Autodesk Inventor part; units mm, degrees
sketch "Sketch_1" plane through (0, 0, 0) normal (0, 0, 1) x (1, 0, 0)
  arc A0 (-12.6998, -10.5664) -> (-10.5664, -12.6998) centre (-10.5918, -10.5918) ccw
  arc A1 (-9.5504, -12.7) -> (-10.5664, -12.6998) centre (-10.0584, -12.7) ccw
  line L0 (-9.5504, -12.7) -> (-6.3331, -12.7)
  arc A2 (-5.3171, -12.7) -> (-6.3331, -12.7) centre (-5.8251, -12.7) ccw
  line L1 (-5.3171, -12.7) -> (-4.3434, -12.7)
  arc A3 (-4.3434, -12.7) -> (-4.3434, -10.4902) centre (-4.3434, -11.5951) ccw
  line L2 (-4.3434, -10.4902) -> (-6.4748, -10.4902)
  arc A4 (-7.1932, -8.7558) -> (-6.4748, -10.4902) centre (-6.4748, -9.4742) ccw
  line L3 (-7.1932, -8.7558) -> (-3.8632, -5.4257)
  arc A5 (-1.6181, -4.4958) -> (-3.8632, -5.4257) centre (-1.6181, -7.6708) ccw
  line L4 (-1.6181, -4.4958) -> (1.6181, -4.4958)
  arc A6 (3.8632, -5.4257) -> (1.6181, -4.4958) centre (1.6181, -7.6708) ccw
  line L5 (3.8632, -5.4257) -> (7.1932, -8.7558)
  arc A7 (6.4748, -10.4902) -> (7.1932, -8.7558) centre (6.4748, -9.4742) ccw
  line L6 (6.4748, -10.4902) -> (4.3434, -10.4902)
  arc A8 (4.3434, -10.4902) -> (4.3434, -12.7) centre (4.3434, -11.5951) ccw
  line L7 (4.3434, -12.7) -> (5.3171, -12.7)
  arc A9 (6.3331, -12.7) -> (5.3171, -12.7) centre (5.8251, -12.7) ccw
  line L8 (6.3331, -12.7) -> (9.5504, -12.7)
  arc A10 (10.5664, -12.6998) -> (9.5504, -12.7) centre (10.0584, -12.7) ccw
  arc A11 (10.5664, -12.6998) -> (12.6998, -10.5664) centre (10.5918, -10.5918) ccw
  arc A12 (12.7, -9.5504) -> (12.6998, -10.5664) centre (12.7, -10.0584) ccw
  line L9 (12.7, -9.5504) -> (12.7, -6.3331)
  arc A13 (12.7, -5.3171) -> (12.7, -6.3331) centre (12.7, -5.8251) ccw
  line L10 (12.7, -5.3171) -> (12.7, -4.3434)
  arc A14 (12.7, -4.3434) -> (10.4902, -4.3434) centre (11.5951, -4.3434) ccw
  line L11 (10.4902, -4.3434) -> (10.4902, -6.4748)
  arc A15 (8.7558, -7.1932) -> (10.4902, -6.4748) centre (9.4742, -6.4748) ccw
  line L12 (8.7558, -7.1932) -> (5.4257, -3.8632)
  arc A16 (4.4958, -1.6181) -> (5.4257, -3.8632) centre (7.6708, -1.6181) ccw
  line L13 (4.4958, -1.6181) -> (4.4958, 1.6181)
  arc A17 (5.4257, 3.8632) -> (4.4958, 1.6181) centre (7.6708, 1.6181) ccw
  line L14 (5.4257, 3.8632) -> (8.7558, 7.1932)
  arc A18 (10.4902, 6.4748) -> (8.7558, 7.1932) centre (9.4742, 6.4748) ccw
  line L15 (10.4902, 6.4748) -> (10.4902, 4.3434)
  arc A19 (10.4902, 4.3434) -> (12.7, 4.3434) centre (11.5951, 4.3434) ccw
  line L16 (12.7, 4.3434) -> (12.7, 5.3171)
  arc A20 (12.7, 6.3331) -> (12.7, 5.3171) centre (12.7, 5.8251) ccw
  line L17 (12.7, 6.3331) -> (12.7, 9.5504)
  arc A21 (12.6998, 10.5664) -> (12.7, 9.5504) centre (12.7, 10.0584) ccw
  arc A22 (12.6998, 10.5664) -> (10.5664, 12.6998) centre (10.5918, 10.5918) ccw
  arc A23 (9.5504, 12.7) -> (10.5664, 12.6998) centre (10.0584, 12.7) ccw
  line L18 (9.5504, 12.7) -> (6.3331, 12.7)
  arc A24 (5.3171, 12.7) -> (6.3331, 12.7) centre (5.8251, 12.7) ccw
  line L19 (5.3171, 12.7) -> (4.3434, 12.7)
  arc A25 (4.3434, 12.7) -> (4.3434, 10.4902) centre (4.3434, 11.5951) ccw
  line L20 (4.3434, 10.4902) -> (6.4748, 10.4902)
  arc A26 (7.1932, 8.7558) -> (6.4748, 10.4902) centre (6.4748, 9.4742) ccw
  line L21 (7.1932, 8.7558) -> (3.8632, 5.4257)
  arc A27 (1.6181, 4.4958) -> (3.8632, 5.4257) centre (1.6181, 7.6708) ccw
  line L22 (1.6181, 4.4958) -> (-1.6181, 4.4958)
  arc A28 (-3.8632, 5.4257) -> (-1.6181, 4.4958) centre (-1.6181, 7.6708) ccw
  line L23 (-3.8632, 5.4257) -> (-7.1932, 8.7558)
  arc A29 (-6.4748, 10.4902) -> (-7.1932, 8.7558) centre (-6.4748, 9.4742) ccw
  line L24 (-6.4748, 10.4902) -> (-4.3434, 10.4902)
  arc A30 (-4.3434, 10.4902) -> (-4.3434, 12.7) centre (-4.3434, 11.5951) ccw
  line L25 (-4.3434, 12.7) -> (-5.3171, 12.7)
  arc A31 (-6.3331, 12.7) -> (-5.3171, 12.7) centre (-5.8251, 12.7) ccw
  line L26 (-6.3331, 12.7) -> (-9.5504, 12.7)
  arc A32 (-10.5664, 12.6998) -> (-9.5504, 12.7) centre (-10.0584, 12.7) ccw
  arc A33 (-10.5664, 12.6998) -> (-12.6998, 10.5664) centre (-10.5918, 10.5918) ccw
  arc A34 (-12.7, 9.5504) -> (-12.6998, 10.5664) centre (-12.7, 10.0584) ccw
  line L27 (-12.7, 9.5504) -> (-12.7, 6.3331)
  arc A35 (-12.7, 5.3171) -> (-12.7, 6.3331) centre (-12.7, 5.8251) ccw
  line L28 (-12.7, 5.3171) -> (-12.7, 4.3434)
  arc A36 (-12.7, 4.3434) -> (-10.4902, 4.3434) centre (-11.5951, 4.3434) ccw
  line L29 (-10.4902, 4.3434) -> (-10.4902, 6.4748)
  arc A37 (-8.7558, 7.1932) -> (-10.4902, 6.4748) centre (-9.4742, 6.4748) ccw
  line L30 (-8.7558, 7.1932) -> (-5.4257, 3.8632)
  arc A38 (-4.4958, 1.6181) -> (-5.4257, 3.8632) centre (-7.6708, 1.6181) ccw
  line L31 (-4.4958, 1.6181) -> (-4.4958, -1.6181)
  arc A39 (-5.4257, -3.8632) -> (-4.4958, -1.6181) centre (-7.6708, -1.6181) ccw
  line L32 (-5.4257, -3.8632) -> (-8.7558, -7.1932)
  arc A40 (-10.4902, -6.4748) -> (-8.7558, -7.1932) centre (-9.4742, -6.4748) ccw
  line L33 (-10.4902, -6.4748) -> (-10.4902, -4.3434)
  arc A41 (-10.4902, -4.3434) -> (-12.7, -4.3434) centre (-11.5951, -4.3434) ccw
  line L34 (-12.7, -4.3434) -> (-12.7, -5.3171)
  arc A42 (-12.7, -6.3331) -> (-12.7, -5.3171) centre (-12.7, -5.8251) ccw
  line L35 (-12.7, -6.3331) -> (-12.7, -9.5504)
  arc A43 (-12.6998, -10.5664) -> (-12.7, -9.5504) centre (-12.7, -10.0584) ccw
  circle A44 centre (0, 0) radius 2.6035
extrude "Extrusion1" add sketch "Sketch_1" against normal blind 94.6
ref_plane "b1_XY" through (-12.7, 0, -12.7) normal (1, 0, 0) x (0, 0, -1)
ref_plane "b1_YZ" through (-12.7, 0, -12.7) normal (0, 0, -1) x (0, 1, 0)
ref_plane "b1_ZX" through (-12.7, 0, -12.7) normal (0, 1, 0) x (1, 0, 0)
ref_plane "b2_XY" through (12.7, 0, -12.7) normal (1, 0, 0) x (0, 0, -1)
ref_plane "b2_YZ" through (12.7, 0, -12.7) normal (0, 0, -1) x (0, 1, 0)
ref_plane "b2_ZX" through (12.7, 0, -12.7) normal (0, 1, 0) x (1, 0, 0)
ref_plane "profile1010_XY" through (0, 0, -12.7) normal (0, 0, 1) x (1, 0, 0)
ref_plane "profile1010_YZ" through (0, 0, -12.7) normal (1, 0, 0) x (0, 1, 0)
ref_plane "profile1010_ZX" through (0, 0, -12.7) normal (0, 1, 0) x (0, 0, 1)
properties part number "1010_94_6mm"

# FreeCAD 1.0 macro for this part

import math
import FreeCAD as App
import Part
import Sketcher

V = App.Vector
Q = App.Units.Quantity

doc = App.newDocument("Part")
body = doc.addObject("PartDesign::Body", "Body")

# Sketch on XY plane
sketch1 = body.newObject("Sketcher::SketchObject", "Sketch")
sketch1.AttachmentSupport = (doc.getObject("XY_Plane"), [""])
sketch1.MapMode = "FlatFace"
sketch1.addGeometry([
    Part.ArcOfCircle(Part.Circle(V(-12.7, -10.1, 0), V(0, 0, 1), 0.5), math.radians(-90), math.radians(90)),  # 0
    Part.ArcOfCircle(Part.Circle(V(-10.6, -10.6, 0), V(0, 0, 1), 2.1), math.radians(179), math.radians(271)),  # 1
    Part.ArcOfCircle(Part.Circle(V(-10.1, -12.7, 0), V(0, 0, 1), 0.5), math.radians(0), math.radians(180)),  # 2
    Part.LineSegment(V(-9.6, -12.7, 0), V(-6.3, -12.7, 0)),  # 3
    Part.ArcOfCircle(Part.Circle(V(-5.8, -12.7, 0), V(0, 0, 1), 0.5), math.radians(0), math.radians(180)),  # 4
    Part.LineSegment(V(-5.3, -12.7, 0), V(-4.3, -12.7, 0)),  # 5
    Part.ArcOfCircle(Part.Circle(V(-4.3, -11.6, 0), V(0, 0, 1), 1.1), math.radians(-90), math.radians(90)),  # 6
    Part.LineSegment(V(-4.3, -10.5, 0), V(-6.5, -10.5, 0)),  # 7
    Part.ArcOfCircle(Part.Circle(V(-6.5, -9.5, 0), V(0, 0, 1), 1), math.radians(135), math.radians(270)),  # 8
    Part.LineSegment(V(-7.2, -8.8, 0), V(-3.9, -5.4, 0)),  # 9
    Part.ArcOfCircle(Part.Circle(V(-1.6, -7.7, 0), V(0, 0, 1), 3.2), math.radians(90), math.radians(135)),  # 10
    Part.LineSegment(V(-1.6, -4.5, 0), V(1.6, -4.5, 0)),  # 11
    Part.ArcOfCircle(Part.Circle(V(1.6, -7.7, 0), V(0, 0, 1), 3.2), math.radians(45), math.radians(90)),  # 12
    Part.LineSegment(V(3.9, -5.4, 0), V(7.2, -8.8, 0)),  # 13
    Part.ArcOfCircle(Part.Circle(V(6.5, -9.5, 0), V(0, 0, 1), 1), math.radians(-90), math.radians(45)),  # 14
    Part.LineSegment(V(6.5, -10.5, 0), V(4.3, -10.5, 0)),  # 15
    Part.ArcOfCircle(Part.Circle(V(4.3, -11.6, 0), V(0, 0, 1), 1.1), math.radians(90), math.radians(270)),  # 16
    Part.LineSegment(V(4.3, -12.7, 0), V(5.3, -12.7, 0)),  # 17
    Part.ArcOfCircle(Part.Circle(V(5.8, -12.7, 0), V(0, 0, 1), 0.5), math.radians(0), math.radians(180)),  # 18
    Part.LineSegment(V(6.3, -12.7, 0), V(9.6, -12.7, 0)),  # 19
    Part.ArcOfCircle(Part.Circle(V(10.1, -12.7, 0), V(0, 0, 1), 0.5), math.radians(0), math.radians(180)),  # 20
    Part.ArcOfCircle(Part.Circle(V(10.6, -10.6, 0), V(0, 0, 1), 2.1), math.radians(-91), math.radians(1)),  # 21
    Part.ArcOfCircle(Part.Circle(V(12.7, -10.1, 0), V(0, 0, 1), 0.5), math.radians(90), math.radians(270)),  # 22
    Part.LineSegment(V(12.7, -9.6, 0), V(12.7, -6.3, 0)),  # 23
    Part.ArcOfCircle(Part.Circle(V(12.7, -5.8, 0), V(0, 0, 1), 0.5), math.radians(90), math.radians(270)),  # 24
    Part.LineSegment(V(12.7, -5.3, 0), V(12.7, -4.3, 0)),  # 25
    Part.ArcOfCircle(Part.Circle(V(11.6, -4.3, 0), V(0, 0, 1), 1.1), math.radians(0), math.radians(180)),  # 26
    Part.LineSegment(V(10.5, -4.3, 0), V(10.5, -6.5, 0)),  # 27
    Part.ArcOfCircle(Part.Circle(V(9.5, -6.5, 0), V(0, 0, 1), 1), math.radians(-135), math.radians(0)),  # 28
    Part.LineSegment(V(8.8, -7.2, 0), V(5.4, -3.9, 0)),  # 29
    Part.ArcOfCircle(Part.Circle(V(7.7, -1.6, 0), V(0, 0, 1), 3.2), math.radians(180), math.radians(225)),  # 30
    Part.LineSegment(V(4.5, -1.6, 0), V(4.5, 1.6, 0)),  # 31
    Part.ArcOfCircle(Part.Circle(V(7.7, 1.6, 0), V(0, 0, 1), 3.2), math.radians(135), math.radians(180)),  # 32
    Part.LineSegment(V(5.4, 3.9, 0), V(8.8, 7.2, 0)),  # 33
    Part.ArcOfCircle(Part.Circle(V(9.5, 6.5, 0), V(0, 0, 1), 1), math.radians(0), math.radians(135)),  # 34
    Part.LineSegment(V(10.5, 6.5, 0), V(10.5, 4.3, 0)),  # 35
    Part.ArcOfCircle(Part.Circle(V(11.6, 4.3, 0), V(0, 0, 1), 1.1), math.radians(180), math.radians(360)),  # 36
    Part.LineSegment(V(12.7, 4.3, 0), V(12.7, 5.3, 0)),  # 37
    Part.ArcOfCircle(Part.Circle(V(12.7, 5.8, 0), V(0, 0, 1), 0.5), math.radians(90), math.radians(270)),  # 38
    Part.LineSegment(V(12.7, 6.3, 0), V(12.7, 9.6, 0)),  # 39
    Part.ArcOfCircle(Part.Circle(V(12.7, 10.1, 0), V(0, 0, 1), 0.5), math.radians(90), math.radians(270)),  # 40
    Part.ArcOfCircle(Part.Circle(V(10.6, 10.6, 0), V(0, 0, 1), 2.1), math.radians(-1), math.radians(91)),  # 41
    Part.ArcOfCircle(Part.Circle(V(10.1, 12.7, 0), V(0, 0, 1), 0.5), math.radians(180), math.radians(360)),  # 42
    Part.LineSegment(V(9.6, 12.7, 0), V(6.3, 12.7, 0)),  # 43
    Part.ArcOfCircle(Part.Circle(V(5.8, 12.7, 0), V(0, 0, 1), 0.5), math.radians(180), math.radians(360)),  # 44
    Part.LineSegment(V(5.3, 12.7, 0), V(4.3, 12.7, 0)),  # 45
    Part.ArcOfCircle(Part.Circle(V(4.3, 11.6, 0), V(0, 0, 1), 1.1), math.radians(90), math.radians(270)),  # 46
    Part.LineSegment(V(4.3, 10.5, 0), V(6.5, 10.5, 0)),  # 47
    Part.ArcOfCircle(Part.Circle(V(6.5, 9.5, 0), V(0, 0, 1), 1), math.radians(-45), math.radians(90)),  # 48
    Part.LineSegment(V(7.2, 8.8, 0), V(3.9, 5.4, 0)),  # 49
    Part.ArcOfCircle(Part.Circle(V(1.6, 7.7, 0), V(0, 0, 1), 3.2), math.radians(-90), math.radians(-45)),  # 50
    Part.LineSegment(V(1.6, 4.5, 0), V(-1.6, 4.5, 0)),  # 51
    Part.ArcOfCircle(Part.Circle(V(-1.6, 7.7, 0), V(0, 0, 1), 3.2), math.radians(-135), math.radians(-90)),  # 52
    Part.LineSegment(V(-3.9, 5.4, 0), V(-7.2, 8.8, 0)),  # 53
    Part.ArcOfCircle(Part.Circle(V(-6.5, 9.5, 0), V(0, 0, 1), 1), math.radians(90), math.radians(225)),  # 54
    Part.LineSegment(V(-6.5, 10.5, 0), V(-4.3, 10.5, 0)),  # 55
    Part.ArcOfCircle(Part.Circle(V(-4.3, 11.6, 0), V(0, 0, 1), 1.1), math.radians(-90), math.radians(90)),  # 56
    Part.LineSegment(V(-4.3, 12.7, 0), V(-5.3, 12.7, 0)),  # 57
    Part.ArcOfCircle(Part.Circle(V(-5.8, 12.7, 0), V(0, 0, 1), 0.5), math.radians(180), math.radians(360)),  # 58
    Part.LineSegment(V(-6.3, 12.7, 0), V(-9.6, 12.7, 0)),  # 59
    Part.ArcOfCircle(Part.Circle(V(-10.1, 12.7, 0), V(0, 0, 1), 0.5), math.radians(-180), math.radians(0)),  # 60
    Part.ArcOfCircle(Part.Circle(V(-10.6, 10.6, 0), V(0, 0, 1), 2.1), math.radians(89), math.radians(181)),  # 61
    Part.ArcOfCircle(Part.Circle(V(-12.7, 10.1, 0), V(0, 0, 1), 0.5), math.radians(-90), math.radians(90)),  # 62
    Part.LineSegment(V(-12.7, 9.6, 0), V(-12.7, 6.3, 0)),  # 63
    Part.ArcOfCircle(Part.Circle(V(-12.7, 5.8, 0), V(0, 0, 1), 0.5), math.radians(-90), math.radians(90)),  # 64
    Part.LineSegment(V(-12.7, 5.3, 0), V(-12.7, 4.3, 0)),  # 65
    Part.ArcOfCircle(Part.Circle(V(-11.6, 4.3, 0), V(0, 0, 1), 1.1), math.radians(180), math.radians(360)),  # 66
    Part.LineSegment(V(-10.5, 4.3, 0), V(-10.5, 6.5, 0)),  # 67
    Part.ArcOfCircle(Part.Circle(V(-9.5, 6.5, 0), V(0, 0, 1), 1), math.radians(45), math.radians(180)),  # 68
    Part.LineSegment(V(-8.8, 7.2, 0), V(-5.4, 3.9, 0)),  # 69
    Part.ArcOfCircle(Part.Circle(V(-7.7, 1.6, 0), V(0, 0, 1), 3.2), math.radians(0), math.radians(45)),  # 70
    Part.LineSegment(V(-4.5, 1.6, 0), V(-4.5, -1.6, 0)),  # 71
    Part.ArcOfCircle(Part.Circle(V(-7.7, -1.6, 0), V(0, 0, 1), 3.2), math.radians(-45), math.radians(0)),  # 72
    Part.LineSegment(V(-5.4, -3.9, 0), V(-8.8, -7.2, 0)),  # 73
    Part.ArcOfCircle(Part.Circle(V(-9.5, -6.5, 0), V(0, 0, 1), 1), math.radians(180), math.radians(315)),  # 74
    Part.LineSegment(V(-10.5, -6.5, 0), V(-10.5, -4.3, 0)),  # 75
    Part.ArcOfCircle(Part.Circle(V(-11.6, -4.3, 0), V(0, 0, 1), 1.1), math.radians(0), math.radians(180)),  # 76
    Part.LineSegment(V(-12.7, -4.3, 0), V(-12.7, -5.3, 0)),  # 77
    Part.ArcOfCircle(Part.Circle(V(-12.7, -5.8, 0), V(0, 0, 1), 0.5), math.radians(-90), math.radians(90)),  # 78
    Part.LineSegment(V(-12.7, -6.3, 0), V(-12.7, -9.6, 0)),  # 79
    Part.Circle(V(0, 0, 0), V(0, 0, 1), 2.6),  # 80
], False)
sketch1.addConstraint([
    Sketcher.Constraint("Coincident", 0, 1, 1, 1),
    Sketcher.Constraint("Coincident", 1, 2, 2, 2),
    Sketcher.Constraint("Coincident", 2, 1, 3, 1),
    Sketcher.Constraint("Coincident", 3, 2, 4, 2),
    Sketcher.Constraint("Coincident", 4, 1, 5, 1),
    Sketcher.Constraint("Tangent", 5, 2, 6, 1),
    Sketcher.Constraint("Tangent", 6, 2, 7, 1),
    Sketcher.Constraint("Tangent", 7, 2, 8, 2),
    Sketcher.Constraint("Tangent", 8, 1, 9, 1),
    Sketcher.Constraint("Tangent", 9, 2, 10, 2),
    Sketcher.Constraint("Tangent", 10, 1, 11, 1),
    Sketcher.Constraint("Tangent", 11, 2, 12, 2),
    Sketcher.Constraint("Tangent", 12, 1, 13, 1),
    Sketcher.Constraint("Tangent", 13, 2, 14, 2),
    Sketcher.Constraint("Tangent", 14, 1, 15, 1),
    Sketcher.Constraint("Tangent", 15, 2, 16, 1),
    Sketcher.Constraint("Tangent", 16, 2, 17, 1),
    Sketcher.Constraint("Coincident", 17, 2, 18, 2),
    Sketcher.Constraint("Coincident", 18, 1, 19, 1),
    Sketcher.Constraint("Coincident", 19, 2, 20, 2),
    Sketcher.Constraint("Coincident", 20, 1, 21, 1),
    Sketcher.Constraint("Coincident", 21, 2, 22, 2),
    Sketcher.Constraint("Coincident", 22, 1, 23, 1),
    Sketcher.Constraint("Coincident", 23, 2, 24, 2),
    Sketcher.Constraint("Coincident", 24, 1, 25, 1),
    Sketcher.Constraint("Tangent", 25, 2, 26, 1),
    Sketcher.Constraint("Tangent", 26, 2, 27, 1),
    Sketcher.Constraint("Tangent", 27, 2, 28, 2),
    Sketcher.Constraint("Tangent", 28, 1, 29, 1),
    Sketcher.Constraint("Tangent", 29, 2, 30, 2),
    Sketcher.Constraint("Tangent", 30, 1, 31, 1),
    Sketcher.Constraint("Tangent", 31, 2, 32, 2),
    Sketcher.Constraint("Tangent", 32, 1, 33, 1),
    Sketcher.Constraint("Tangent", 33, 2, 34, 2),
    Sketcher.Constraint("Tangent", 34, 1, 35, 1),
    Sketcher.Constraint("Tangent", 35, 2, 36, 1),
    Sketcher.Constraint("Tangent", 36, 2, 37, 1),
    Sketcher.Constraint("Coincident", 37, 2, 38, 2),
    Sketcher.Constraint("Coincident", 38, 1, 39, 1),
    Sketcher.Constraint("Coincident", 39, 2, 40, 2),
    Sketcher.Constraint("Coincident", 40, 1, 41, 1),
    Sketcher.Constraint("Coincident", 41, 2, 42, 2),
    Sketcher.Constraint("Coincident", 42, 1, 43, 1),
    Sketcher.Constraint("Coincident", 43, 2, 44, 2),
    Sketcher.Constraint("Coincident", 44, 1, 45, 1),
    Sketcher.Constraint("Tangent", 45, 2, 46, 1),
    Sketcher.Constraint("Tangent", 46, 2, 47, 1),
    Sketcher.Constraint("Tangent", 47, 2, 48, 2),
    Sketcher.Constraint("Tangent", 48, 1, 49, 1),
    Sketcher.Constraint("Tangent", 49, 2, 50, 2),
    Sketcher.Constraint("Tangent", 50, 1, 51, 1),
    Sketcher.Constraint("Tangent", 51, 2, 52, 2),
    Sketcher.Constraint("Tangent", 52, 1, 53, 1),
    Sketcher.Constraint("Tangent", 53, 2, 54, 2),
    Sketcher.Constraint("Tangent", 54, 1, 55, 1),
    Sketcher.Constraint("Tangent", 55, 2, 56, 1),
    Sketcher.Constraint("Tangent", 56, 2, 57, 1),
    Sketcher.Constraint("Coincident", 57, 2, 58, 2),
    Sketcher.Constraint("Coincident", 58, 1, 59, 1),
    Sketcher.Constraint("Coincident", 59, 2, 60, 2),
    Sketcher.Constraint("Coincident", 60, 1, 61, 1),
    Sketcher.Constraint("Coincident", 61, 2, 62, 2),
    Sketcher.Constraint("Coincident", 62, 1, 63, 1),
    Sketcher.Constraint("Coincident", 63, 2, 64, 2),
    Sketcher.Constraint("Coincident", 64, 1, 65, 1),
    Sketcher.Constraint("Tangent", 65, 2, 66, 1),
    Sketcher.Constraint("Tangent", 66, 2, 67, 1),
    Sketcher.Constraint("Tangent", 67, 2, 68, 2),
    Sketcher.Constraint("Tangent", 68, 1, 69, 1),
    Sketcher.Constraint("Tangent", 69, 2, 70, 2),
    Sketcher.Constraint("Tangent", 70, 1, 71, 1),
    Sketcher.Constraint("Tangent", 71, 2, 72, 2),
    Sketcher.Constraint("Tangent", 72, 1, 73, 1),
    Sketcher.Constraint("Tangent", 73, 2, 74, 2),
    Sketcher.Constraint("Tangent", 74, 1, 75, 1),
    Sketcher.Constraint("Tangent", 75, 2, 76, 1),
    Sketcher.Constraint("Tangent", 76, 2, 77, 1),
    Sketcher.Constraint("Coincident", 77, 2, 78, 2),
    Sketcher.Constraint("Coincident", 78, 1, 79, 1),
    Sketcher.Constraint("Coincident", 79, 2, 0, 2),
    Sketcher.Constraint("Horizontal", 3),
    Sketcher.Constraint("Horizontal", 5),
    Sketcher.Constraint("Horizontal", 7),
    Sketcher.Constraint("Horizontal", 11),
    Sketcher.Constraint("Horizontal", 15),
    Sketcher.Constraint("Horizontal", 17),
    Sketcher.Constraint("Horizontal", 19),
    Sketcher.Constraint("Vertical", 23),
    Sketcher.Constraint("Vertical", 25),
    Sketcher.Constraint("Vertical", 27),
    Sketcher.Constraint("Vertical", 31),
    Sketcher.Constraint("Vertical", 35),
    Sketcher.Constraint("Vertical", 37),
    Sketcher.Constraint("Vertical", 39),
    Sketcher.Constraint("Horizontal", 43),
    Sketcher.Constraint("Horizontal", 45),
    Sketcher.Constraint("Horizontal", 47),
    Sketcher.Constraint("Horizontal", 51),
    Sketcher.Constraint("Horizontal", 55),
    Sketcher.Constraint("Horizontal", 57),
    Sketcher.Constraint("Horizontal", 59),
    Sketcher.Constraint("Vertical", 63),
    Sketcher.Constraint("Vertical", 65),
    Sketcher.Constraint("Vertical", 67),
    Sketcher.Constraint("Vertical", 71),
    Sketcher.Constraint("Vertical", 75),
    Sketcher.Constraint("Vertical", 77),
    Sketcher.Constraint("Vertical", 79),
    Sketcher.Constraint("Coincident", 80, 3, -1, 1),
    Sketcher.Constraint("Equal", 0, 2),
    Sketcher.Constraint("Equal", 2, 4),
    Sketcher.Constraint("Equal", 10, 12),
    Sketcher.Constraint("Equal", 8, 14),
    Sketcher.Constraint("Equal", 6, 16),
    Sketcher.Constraint("Equal", 4, 18),
    Sketcher.Constraint("Equal", 18, 20),
    Sketcher.Constraint("Equal", 1, 21),
    Sketcher.Constraint("Equal", 20, 22),
    Sketcher.Constraint("Equal", 22, 24),
    Sketcher.Constraint("Equal", 16, 26),
    Sketcher.Constraint("Equal", 14, 28),
    Sketcher.Constraint("Equal", 12, 30),
    Sketcher.Constraint("Equal", 30, 32),
    Sketcher.Constraint("Equal", 28, 34),
    Sketcher.Constraint("Equal", 26, 36),
    Sketcher.Constraint("Equal", 24, 38),
    Sketcher.Constraint("Equal", 38, 40),
    Sketcher.Constraint("Equal", 21, 41),
    Sketcher.Constraint("Equal", 40, 42),
    Sketcher.Constraint("Equal", 42, 44),
    Sketcher.Constraint("Equal", 36, 46),
    Sketcher.Constraint("Equal", 34, 48),
    Sketcher.Constraint("Equal", 32, 50),
    Sketcher.Constraint("Equal", 50, 52),
    Sketcher.Constraint("Equal", 48, 54),
    Sketcher.Constraint("Equal", 46, 56),
    Sketcher.Constraint("Equal", 44, 58),
    Sketcher.Constraint("Equal", 58, 60),
    Sketcher.Constraint("Equal", 41, 61),
    Sketcher.Constraint("Equal", 60, 62),
    Sketcher.Constraint("Equal", 62, 64),
    Sketcher.Constraint("Equal", 56, 66),
    Sketcher.Constraint("Equal", 54, 68),
    Sketcher.Constraint("Equal", 52, 70),
    Sketcher.Constraint("Equal", 70, 72),
    Sketcher.Constraint("Equal", 68, 74),
    Sketcher.Constraint("Equal", 66, 76),
    Sketcher.Constraint("Equal", 64, 78),
    Sketcher.Constraint("Symmetric", 0, 3, 40, 3, -1, 1),
    Sketcher.Constraint("Symmetric", 1, 3, 41, 3, -1, 1),
    Sketcher.Constraint("Symmetric", 2, 3, 42, 3, -1, 1),
    Sketcher.Constraint("Symmetric", 4, 3, 44, 3, -1, 1),
    Sketcher.Constraint("Symmetric", 6, 3, 46, 3, -1, 1),
    Sketcher.Constraint("Symmetric", 10, 3, 50, 3, -1, 1),
    Sketcher.Constraint("Symmetric", 14, 3, 54, 3, -1, 1),
    Sketcher.Constraint("Symmetric", 18, 3, 58, 3, -1, 1),
    Sketcher.Constraint("Symmetric", 20, 3, 60, 3, -1, 1),
    Sketcher.Constraint("Symmetric", 21, 3, 61, 3, -1, 1),
    Sketcher.Constraint("Symmetric", 22, 3, 62, 3, -1, 1),
    Sketcher.Constraint("Symmetric", 24, 3, 64, 3, -1, 1),
    Sketcher.Constraint("Symmetric", 26, 3, 66, 3, -1, 1),
    Sketcher.Constraint("Symmetric", 30, 3, 70, 3, -1, 1),
    Sketcher.Constraint("Symmetric", 34, 3, 74, 3, -1, 1),
    Sketcher.Constraint("Symmetric", 38, 3, 78, 3, -1, 1),
    Sketcher.Constraint("Symmetric", 8, 3, 14, 3, -2),
    Sketcher.Constraint("Symmetric", 4, 3, 18, 3, -2),
    Sketcher.Constraint("Symmetric", 2, 3, 20, 3, -2),
    Sketcher.Constraint("Symmetric", 1, 3, 21, 3, -2),
    Sketcher.Constraint("Symmetric", 0, 3, 22, 3, -2),
    Sketcher.Constraint("Symmetric", 38, 3, 64, 3, -2),
    Sketcher.Constraint("Symmetric", 36, 3, 66, 3, -2),
    Sketcher.Constraint("Symmetric", 49, 2, 52, 1, -2),
    Sketcher.Constraint("Symmetric", 33, 2, 68, 1, -2),
    Sketcher.Constraint("Symmetric", 29, 2, 72, 1, -2),
    Sketcher.Constraint("Perpendicular", 9, 13),
    Sketcher.Constraint("Parallel", 13, 29),
    Sketcher.Constraint("Perpendicular", 29, 33),
    Sketcher.Constraint("Horizontal", 2, 3, 4, 3),
    Sketcher.Constraint("Horizontal", 26, 3, 76, 3),
    Sketcher.Constraint("Horizontal", 20, 3, 1, 2),
    Sketcher.Constraint("Horizontal", 1, 2, 2, 1),
    Sketcher.Constraint("Horizontal", 3, 2, 4, 1),
    Sketcher.Constraint("Horizontal", 17, 2, 18, 1),
    Sketcher.Constraint("Horizontal", 41, 2, 42, 1),
    Sketcher.Constraint("Horizontal", 57, 2, 58, 1),
    Sketcher.Constraint("Vertical", 22, 3, 24, 3),
    Sketcher.Constraint("Vertical", 16, 3, 46, 3),
    Sketcher.Constraint("Vertical", 6, 3, 56, 3),
    Sketcher.Constraint("Vertical", 78, 3, 0, 1),
    Sketcher.Constraint("Vertical", 21, 2, 22, 1),
    Sketcher.Constraint("Vertical", 23, 2, 24, 1),
    Sketcher.Constraint("Vertical", 37, 2, 38, 1),
    Sketcher.Constraint("Vertical", 61, 2, 62, 1),
    Sketcher.Constraint("Vertical", 77, 2, 78, 1),
    Sketcher.Constraint("Equal", 59, 23),
    Sketcher.Constraint("Equal", 57, 25),
    Sketcher.Constraint("Equal", 55, 27),
    Sketcher.Constraint("Equal", 51, 31),
    Sketcher.Constraint("Equal", 13, 29),
    Sketcher.Constraint("Radius", 0, Q("0.02 in")),
    Sketcher.Constraint("Radius", 8, Q("0.04 in")),
    Sketcher.Constraint("Diameter", 80, Q("0.205 in")),
    Sketcher.Constraint("Radius", 1, Q("0.083 in")),
    Sketcher.Constraint("Radius", 10, Q("0.125 in")),
    Sketcher.Constraint("DistanceX", 0, 3, -1, 1, Q("0.5 in")),
    Sketcher.Constraint("DistanceY", 2, 3, -1, 1, Q("0.5 in")),
    Sketcher.Constraint("Radius", 6, Q("0.0435 in")),
    Sketcher.Constraint("DistanceX", 11, 1, 11, 2, Q("0.1274 in")),
    Sketcher.Constraint("DistanceY", 0, 3, -1, 1, Q("0.396 in")),
    Sketcher.Constraint("DistanceX", 6, 3, -1, 1, Q("0.171 in")),
    Sketcher.Constraint("DistanceY", 10, 3, -1, 1, Q("0.302 in")),
    Sketcher.Constraint("DistanceX", 3, 1, 3, 2, 3.2173),
])
pad1 = body.newObject("PartDesign::Pad", "Pad")
pad1.Profile = sketch1
pad1.Length = Q("3.7244094 in")
pad1.Reversed = True

doc.recompute()
